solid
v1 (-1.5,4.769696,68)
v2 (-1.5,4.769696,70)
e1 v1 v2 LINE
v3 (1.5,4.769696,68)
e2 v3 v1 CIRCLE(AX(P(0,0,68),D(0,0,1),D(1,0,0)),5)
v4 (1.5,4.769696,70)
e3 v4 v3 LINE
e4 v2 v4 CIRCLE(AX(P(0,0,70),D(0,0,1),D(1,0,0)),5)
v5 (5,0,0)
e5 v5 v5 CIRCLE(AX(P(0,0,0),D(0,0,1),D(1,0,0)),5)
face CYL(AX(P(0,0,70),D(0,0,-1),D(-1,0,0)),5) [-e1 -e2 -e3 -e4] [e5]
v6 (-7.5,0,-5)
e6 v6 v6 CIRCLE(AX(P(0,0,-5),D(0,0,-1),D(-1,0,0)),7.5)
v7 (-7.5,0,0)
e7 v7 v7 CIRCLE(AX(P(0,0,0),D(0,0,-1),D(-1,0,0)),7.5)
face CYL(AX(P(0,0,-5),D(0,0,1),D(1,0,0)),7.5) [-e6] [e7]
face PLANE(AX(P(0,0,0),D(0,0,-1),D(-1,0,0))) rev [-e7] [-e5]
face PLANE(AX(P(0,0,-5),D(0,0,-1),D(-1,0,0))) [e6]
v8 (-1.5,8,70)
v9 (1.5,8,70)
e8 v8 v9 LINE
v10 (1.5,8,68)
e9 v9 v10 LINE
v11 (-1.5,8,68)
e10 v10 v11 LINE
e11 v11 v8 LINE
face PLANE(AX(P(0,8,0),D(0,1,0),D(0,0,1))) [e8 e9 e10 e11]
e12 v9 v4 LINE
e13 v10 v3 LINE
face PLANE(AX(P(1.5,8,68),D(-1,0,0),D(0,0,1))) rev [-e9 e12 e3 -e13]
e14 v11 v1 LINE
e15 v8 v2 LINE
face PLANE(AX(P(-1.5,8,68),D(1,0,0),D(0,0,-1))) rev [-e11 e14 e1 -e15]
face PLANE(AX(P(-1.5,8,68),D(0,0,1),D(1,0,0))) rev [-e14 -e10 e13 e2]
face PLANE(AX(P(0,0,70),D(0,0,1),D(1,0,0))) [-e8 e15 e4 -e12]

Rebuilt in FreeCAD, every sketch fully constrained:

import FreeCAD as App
import Part
import Sketcher


def add_polygon(sketch, points):
    """Adds a closed chain of lines whose ends are joined by coincident constraints."""
    first, n = sketch.GeometryCount, len(points)
    for a, b in zip(points, points[1:] + points[:1]):
        sketch.addGeometry(Part.LineSegment(App.Vector(*a, 0), App.Vector(*b, 0)), False)
    for i in range(n):
        sketch.addConstraint(Sketcher.Constraint("Coincident", first + i, 2, first + (i + 1) % n, 1))

doc = App.newDocument("Part")
body = doc.addObject("PartDesign::Body", "Body")

sketch1 = body.newObject("Sketcher::SketchObject", "Sketch")
sketch1.AttachmentSupport = (doc.getObject("XY_Plane"), [""])
sketch1.MapMode = "FlatFace"
sketch1.addGeometry(Part.Circle(App.Vector(0, 0, 0), App.Vector(0, 0, 1), 5), False)
sketch1.addConstraint([
    Sketcher.Constraint("Coincident", 0, 3, -1, 1),
    Sketcher.Constraint("Diameter", 0, 10.0),
])
pad1 = body.newObject("PartDesign::Pad", "Pad")
pad1.Profile = sketch1
pad1.Length = 70

sketch2 = body.newObject("Sketcher::SketchObject", "Sketch001")
sketch2.AttachmentSupport = (doc.getObject("XY_Plane"), [""])
sketch2.MapMode = "FlatFace"
sketch2.addGeometry(Part.Circle(App.Vector(0, 0, 0), App.Vector(0, 0, 1), 8), False)
sketch2.addConstraint([
    Sketcher.Constraint("Coincident", 0, 3, -1, 1),
    Sketcher.Constraint("Diameter", 0, 15.0),
])
pad2 = body.newObject("PartDesign::Pad", "Pad001")
pad2.Profile = sketch2
pad2.Length = 5
pad2.Reversed = True

sketch3 = body.newObject("Sketcher::SketchObject", "Sketch002")
sketch3.AttachmentSupport = (doc.getObject("XZ_Plane"), [""])
sketch3.MapMode = "FlatFace"
add_polygon(sketch3, [(-1.5, 68), (-1.5, 70), (1.5, 70), (1.5, 68)])
sketch3.addConstraint([
    Sketcher.Constraint("Vertical", 0),
    Sketcher.Constraint("Horizontal", 1),
    Sketcher.Constraint("Vertical", 2),
    Sketcher.Constraint("Horizontal", 3),
    Sketcher.Constraint("DistanceX", 1, 1, 1, 2, 3.0),
    Sketcher.Constraint("DistanceY", 0, 1, 0, 2, 2.0),
    Sketcher.Constraint("DistanceY", -1, 1, 0, 2, 70.0),
    Sketcher.Constraint("DistanceX", 0, 2, -1, 1, 1.5),
])
pad3 = body.newObject("PartDesign::Pad", "Pad002")
pad3.Profile = sketch3
pad3.Length = 8
pad3.Reversed = True

doc.recompute()
